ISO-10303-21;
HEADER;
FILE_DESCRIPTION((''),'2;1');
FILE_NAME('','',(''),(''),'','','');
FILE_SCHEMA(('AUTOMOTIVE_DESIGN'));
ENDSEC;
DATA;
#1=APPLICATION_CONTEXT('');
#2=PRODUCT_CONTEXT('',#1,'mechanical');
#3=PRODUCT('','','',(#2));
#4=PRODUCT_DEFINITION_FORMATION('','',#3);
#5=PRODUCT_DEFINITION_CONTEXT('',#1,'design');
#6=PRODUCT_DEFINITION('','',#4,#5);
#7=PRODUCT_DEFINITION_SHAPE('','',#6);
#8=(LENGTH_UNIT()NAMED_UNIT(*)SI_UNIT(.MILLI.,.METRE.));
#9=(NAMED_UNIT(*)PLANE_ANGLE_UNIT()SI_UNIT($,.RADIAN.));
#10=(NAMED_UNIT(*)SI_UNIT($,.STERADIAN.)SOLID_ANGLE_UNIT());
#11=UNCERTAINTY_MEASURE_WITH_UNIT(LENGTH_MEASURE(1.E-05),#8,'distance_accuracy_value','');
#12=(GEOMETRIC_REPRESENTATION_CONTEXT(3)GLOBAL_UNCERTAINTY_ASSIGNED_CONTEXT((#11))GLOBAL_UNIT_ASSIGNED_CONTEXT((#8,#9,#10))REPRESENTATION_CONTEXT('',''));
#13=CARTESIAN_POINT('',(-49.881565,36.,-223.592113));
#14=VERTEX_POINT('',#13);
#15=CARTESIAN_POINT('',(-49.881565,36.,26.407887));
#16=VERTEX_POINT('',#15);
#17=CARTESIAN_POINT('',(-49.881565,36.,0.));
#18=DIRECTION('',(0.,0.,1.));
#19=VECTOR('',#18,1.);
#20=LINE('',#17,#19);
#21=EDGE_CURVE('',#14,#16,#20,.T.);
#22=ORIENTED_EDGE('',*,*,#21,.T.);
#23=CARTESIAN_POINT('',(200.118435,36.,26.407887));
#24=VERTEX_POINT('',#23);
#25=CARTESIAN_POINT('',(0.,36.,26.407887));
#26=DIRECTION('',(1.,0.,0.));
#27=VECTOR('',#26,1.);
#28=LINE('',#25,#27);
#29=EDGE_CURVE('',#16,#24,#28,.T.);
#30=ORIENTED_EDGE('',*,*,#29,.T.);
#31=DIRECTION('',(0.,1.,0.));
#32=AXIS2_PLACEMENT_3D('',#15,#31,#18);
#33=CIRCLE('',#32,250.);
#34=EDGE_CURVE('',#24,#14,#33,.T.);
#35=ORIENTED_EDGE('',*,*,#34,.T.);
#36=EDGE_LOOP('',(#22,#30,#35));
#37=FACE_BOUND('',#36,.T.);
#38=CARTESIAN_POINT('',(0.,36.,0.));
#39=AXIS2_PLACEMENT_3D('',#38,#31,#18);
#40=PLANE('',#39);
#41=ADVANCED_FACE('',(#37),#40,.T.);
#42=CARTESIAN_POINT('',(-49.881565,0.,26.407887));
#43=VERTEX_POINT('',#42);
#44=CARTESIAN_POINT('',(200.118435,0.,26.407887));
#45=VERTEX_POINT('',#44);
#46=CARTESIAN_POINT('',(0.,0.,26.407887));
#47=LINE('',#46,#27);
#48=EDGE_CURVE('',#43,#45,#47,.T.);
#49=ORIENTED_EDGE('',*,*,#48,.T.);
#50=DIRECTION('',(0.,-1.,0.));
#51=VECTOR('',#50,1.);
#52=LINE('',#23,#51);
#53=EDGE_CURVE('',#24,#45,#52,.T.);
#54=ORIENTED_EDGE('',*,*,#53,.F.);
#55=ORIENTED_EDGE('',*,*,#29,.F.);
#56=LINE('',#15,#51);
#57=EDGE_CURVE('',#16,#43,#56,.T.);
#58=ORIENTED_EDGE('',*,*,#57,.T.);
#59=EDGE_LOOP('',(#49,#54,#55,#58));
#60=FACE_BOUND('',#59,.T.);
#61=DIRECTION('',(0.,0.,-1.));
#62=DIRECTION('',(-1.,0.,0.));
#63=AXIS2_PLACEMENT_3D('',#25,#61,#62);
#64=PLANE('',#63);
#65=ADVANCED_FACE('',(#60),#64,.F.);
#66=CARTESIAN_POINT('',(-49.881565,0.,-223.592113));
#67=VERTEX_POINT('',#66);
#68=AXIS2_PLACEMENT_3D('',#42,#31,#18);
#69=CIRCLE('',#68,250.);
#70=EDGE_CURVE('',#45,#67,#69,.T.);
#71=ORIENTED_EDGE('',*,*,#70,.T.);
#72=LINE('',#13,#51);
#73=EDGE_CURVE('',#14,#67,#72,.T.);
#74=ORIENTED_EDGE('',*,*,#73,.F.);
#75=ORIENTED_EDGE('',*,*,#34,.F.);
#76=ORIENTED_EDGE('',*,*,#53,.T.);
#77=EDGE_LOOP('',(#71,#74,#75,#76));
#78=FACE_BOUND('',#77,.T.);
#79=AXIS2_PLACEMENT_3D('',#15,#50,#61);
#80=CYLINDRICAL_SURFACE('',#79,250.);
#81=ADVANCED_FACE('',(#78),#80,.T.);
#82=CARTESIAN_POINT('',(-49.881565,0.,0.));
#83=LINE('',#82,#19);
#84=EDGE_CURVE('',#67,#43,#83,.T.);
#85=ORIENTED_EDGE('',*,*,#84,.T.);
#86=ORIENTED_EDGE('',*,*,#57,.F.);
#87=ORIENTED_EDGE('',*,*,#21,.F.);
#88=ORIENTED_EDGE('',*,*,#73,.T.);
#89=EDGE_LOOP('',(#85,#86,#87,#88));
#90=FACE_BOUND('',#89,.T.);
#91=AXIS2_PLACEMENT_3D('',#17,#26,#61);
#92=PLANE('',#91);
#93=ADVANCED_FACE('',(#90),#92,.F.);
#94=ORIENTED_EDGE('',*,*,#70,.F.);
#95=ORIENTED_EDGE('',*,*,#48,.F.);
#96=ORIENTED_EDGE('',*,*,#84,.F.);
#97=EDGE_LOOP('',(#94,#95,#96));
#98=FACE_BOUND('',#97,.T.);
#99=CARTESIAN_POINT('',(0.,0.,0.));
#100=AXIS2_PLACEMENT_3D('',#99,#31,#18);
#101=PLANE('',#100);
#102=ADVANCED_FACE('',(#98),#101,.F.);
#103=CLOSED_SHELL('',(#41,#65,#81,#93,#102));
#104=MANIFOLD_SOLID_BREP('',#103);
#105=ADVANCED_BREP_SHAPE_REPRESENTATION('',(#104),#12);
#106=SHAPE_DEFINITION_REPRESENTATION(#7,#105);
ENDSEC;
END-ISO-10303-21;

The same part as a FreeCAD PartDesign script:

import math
import FreeCAD as App
import Part
import Sketcher

V = App.Vector

doc = App.newDocument("Part")
body = doc.addObject("PartDesign::Body", "Body")

sketch1 = doc.addObject("Sketcher::SketchObject", "Sketch")
body.addObject(sketch1)
sketch1.AttachmentSupport = (doc.XZ_Plane, [""])
sketch1.MapMode = "FlatFace"
sketch1.addGeometry([
    Part.LineSegment(V(-50, 26, 0), V(200, 26, 0)),
    Part.ArcOfCircle(Part.Circle(V(-50, 26, 0), V(0, 0, 1), 250), math.radians(-90), math.radians(0)),
    Part.LineSegment(V(-50, -224, 0), V(-50, 26, 0)),
], False)
sketch1.addConstraint([
    Sketcher.Constraint("Coincident", 0, 2, 1, 2),
    Sketcher.Constraint("Coincident", 1, 1, 2, 1),
    Sketcher.Constraint("Coincident", 2, 2, 0, 1),
    Sketcher.Constraint("Horizontal", 0),
    Sketcher.Constraint("Vertical", 2),
    Sketcher.Constraint("Coincident", 2, 2, 1, 3),
    Sketcher.Constraint("Radius", 1, 250.0),
    Sketcher.Constraint("DistanceX", 1, 3, -1, 1, 49.881565),
    Sketcher.Constraint("DistanceY", -1, 1, 1, 3, 26.407887),
])
pad1 = doc.addObject("PartDesign::Pad", "Pad")
body.addObject(pad1)
pad1.Profile = sketch1
pad1.Length = 36
pad1.Reversed = True

doc.recompute()
